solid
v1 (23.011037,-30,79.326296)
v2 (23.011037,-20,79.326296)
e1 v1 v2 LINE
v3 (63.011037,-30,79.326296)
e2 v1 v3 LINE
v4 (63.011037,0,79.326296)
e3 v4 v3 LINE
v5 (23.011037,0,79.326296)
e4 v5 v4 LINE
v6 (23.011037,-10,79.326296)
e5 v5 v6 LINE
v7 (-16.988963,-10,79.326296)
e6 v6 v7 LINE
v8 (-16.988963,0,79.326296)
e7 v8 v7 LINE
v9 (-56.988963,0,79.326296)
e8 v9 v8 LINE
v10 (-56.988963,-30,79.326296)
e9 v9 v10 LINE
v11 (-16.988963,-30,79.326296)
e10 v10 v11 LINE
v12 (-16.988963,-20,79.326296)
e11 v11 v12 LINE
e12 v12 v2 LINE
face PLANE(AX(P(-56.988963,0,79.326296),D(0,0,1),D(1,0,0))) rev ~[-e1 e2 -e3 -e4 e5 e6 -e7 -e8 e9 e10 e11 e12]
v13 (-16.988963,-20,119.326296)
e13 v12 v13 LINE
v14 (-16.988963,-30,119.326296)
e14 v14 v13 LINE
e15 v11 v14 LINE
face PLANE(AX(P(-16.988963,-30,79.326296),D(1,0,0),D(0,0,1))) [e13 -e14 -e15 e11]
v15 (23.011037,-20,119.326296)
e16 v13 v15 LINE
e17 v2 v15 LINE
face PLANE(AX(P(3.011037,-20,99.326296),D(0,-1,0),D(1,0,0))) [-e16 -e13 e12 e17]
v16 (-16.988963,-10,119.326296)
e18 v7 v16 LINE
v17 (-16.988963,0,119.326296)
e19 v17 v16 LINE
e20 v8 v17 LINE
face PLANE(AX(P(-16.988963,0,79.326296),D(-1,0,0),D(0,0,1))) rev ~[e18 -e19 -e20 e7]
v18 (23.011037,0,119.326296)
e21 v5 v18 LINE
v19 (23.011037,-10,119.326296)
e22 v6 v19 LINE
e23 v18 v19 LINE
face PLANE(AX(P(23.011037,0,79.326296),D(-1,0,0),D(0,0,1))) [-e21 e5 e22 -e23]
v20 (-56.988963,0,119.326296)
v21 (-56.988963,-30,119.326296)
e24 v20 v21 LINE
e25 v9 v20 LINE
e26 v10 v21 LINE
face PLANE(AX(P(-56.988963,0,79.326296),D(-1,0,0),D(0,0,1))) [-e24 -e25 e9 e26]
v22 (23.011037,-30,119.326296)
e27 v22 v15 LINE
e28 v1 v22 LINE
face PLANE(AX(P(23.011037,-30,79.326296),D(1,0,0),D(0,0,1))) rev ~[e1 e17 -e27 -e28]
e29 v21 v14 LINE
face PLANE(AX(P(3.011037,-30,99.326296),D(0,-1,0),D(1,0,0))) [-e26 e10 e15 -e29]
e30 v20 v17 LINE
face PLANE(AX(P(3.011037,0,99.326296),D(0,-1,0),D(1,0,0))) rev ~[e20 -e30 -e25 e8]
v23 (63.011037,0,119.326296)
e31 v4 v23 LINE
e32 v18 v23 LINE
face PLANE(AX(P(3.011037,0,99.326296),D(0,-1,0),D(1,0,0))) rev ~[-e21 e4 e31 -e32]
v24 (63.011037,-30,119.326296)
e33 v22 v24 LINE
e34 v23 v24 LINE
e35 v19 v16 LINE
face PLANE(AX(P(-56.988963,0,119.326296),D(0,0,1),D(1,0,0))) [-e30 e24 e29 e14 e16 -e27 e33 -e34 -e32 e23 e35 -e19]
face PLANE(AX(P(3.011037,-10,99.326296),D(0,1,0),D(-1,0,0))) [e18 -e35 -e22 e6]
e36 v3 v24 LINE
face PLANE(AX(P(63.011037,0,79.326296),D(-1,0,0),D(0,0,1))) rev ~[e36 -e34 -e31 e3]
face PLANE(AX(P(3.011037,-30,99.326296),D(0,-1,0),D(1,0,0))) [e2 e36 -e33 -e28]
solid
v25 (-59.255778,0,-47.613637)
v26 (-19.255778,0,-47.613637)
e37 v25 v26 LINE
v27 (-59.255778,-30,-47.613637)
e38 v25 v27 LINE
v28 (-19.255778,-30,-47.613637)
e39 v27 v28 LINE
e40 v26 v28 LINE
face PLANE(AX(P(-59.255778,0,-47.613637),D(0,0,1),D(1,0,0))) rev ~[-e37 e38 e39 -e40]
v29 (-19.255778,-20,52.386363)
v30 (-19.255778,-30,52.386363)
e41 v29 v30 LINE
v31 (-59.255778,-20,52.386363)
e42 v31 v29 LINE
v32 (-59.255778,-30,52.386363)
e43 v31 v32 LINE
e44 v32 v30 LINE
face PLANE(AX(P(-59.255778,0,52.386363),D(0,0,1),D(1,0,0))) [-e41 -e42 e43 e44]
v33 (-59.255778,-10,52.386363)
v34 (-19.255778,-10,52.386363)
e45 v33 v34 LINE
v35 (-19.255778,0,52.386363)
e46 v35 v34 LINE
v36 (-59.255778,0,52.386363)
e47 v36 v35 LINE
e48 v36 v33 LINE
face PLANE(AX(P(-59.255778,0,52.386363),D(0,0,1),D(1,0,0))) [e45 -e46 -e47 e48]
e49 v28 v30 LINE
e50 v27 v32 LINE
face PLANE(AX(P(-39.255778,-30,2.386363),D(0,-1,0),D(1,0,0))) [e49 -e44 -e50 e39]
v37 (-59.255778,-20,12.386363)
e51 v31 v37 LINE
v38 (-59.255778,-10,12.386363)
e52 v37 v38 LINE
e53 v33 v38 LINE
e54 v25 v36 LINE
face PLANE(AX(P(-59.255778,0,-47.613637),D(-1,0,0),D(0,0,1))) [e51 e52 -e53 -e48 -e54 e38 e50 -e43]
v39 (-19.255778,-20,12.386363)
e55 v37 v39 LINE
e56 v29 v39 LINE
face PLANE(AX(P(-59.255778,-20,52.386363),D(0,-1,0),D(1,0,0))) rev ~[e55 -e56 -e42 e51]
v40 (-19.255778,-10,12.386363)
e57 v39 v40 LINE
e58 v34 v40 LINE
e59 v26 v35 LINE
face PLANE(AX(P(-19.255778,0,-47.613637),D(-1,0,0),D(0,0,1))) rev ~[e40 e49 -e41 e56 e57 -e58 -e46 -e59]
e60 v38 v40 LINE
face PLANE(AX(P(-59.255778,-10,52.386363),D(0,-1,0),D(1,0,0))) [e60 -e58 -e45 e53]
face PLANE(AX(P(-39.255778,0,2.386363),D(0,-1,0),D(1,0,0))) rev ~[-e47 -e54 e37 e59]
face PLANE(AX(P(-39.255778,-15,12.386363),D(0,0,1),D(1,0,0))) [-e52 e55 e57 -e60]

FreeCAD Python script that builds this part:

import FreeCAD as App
import Part
import Sketcher

V = App.Vector

doc = App.newDocument("Part")
params = doc.addObject("Spreadsheet::Sheet", "Params")
for row, (alias, value) in enumerate([
    ("sketch1_width", "40 mm"),
    ("sketch1_height", "100 mm"),
    ("pad1_length", "30 mm"),
    ("sketch2_width", "40 mm"),
    ("sketch2_height", "10 mm"),
    ("pocket1_length", "40 mm"),
    ("sketch3_width", "120 mm"),
    ("sketch3_height", "40 mm"),
    ("pad2_length", "30 mm"),
    ("sketch4_width", "40 mm"),
    ("pocket2_length", "10 mm"),
    ("sketch5_width", "40 mm"),
    ("pocket3_length", "10 mm"),
], start=1):
    params.set(f"A{row}", alias)
    params.set(f"B{row}", "=" + value)
    params.setAlias(f"B{row}", alias)

body = doc.addObject("PartDesign::Body", "Body")

# Sketch on XZ plane
sketch1 = doc.addObject("Sketcher::SketchObject", "Sketch")
body.addObject(sketch1)
sketch1.AttachmentSupport = (doc.XZ_Plane, [""])
sketch1.MapMode = "FlatFace"
sketch1.addGeometry(Part.LineSegment(V(-59.255778, 52.386363, 0), V(-59.255778, -47.613637, 0)), False)
sketch1.addGeometry(Part.LineSegment(V(-59.255778, -47.613637, 0), V(-19.255778, -47.613637, 0)), False)
sketch1.addGeometry(Part.LineSegment(V(-19.255778, -47.613637, 0), V(-19.255778, 52.386363, 0)), False)
sketch1.addGeometry(Part.LineSegment(V(-19.255778, 52.386363, 0), V(-59.255778, 52.386363, 0)), False)
sketch1.addConstraint(Sketcher.Constraint("Coincident", 0, 2, 1, 1))
sketch1.addConstraint(Sketcher.Constraint("Coincident", 1, 2, 2, 1))
sketch1.addConstraint(Sketcher.Constraint("Coincident", 2, 2, 3, 1))
sketch1.addConstraint(Sketcher.Constraint("Coincident", 3, 2, 0, 1))
sketch1.addConstraint(Sketcher.Constraint("Vertical", 0))
sketch1.addConstraint(Sketcher.Constraint("Horizontal", 1))
sketch1.addConstraint(Sketcher.Constraint("Vertical", 2))
sketch1.addConstraint(Sketcher.Constraint("Horizontal", 3))
sketch1.addConstraint(Sketcher.Constraint("DistanceX", 1, 1, 1, 2, 40.0))
sketch1.addConstraint(Sketcher.Constraint("DistanceY", 0, 2, 0, 1, 100.0))
sketch1.addConstraint(Sketcher.Constraint("DistanceX", 0, 2, -1, 1, 59.255778))
sketch1.addConstraint(Sketcher.Constraint("DistanceY", 0, 2, -1, 1, 47.613637))
sketch1.setExpression("Constraints[8]", "Params.sketch1_width")
sketch1.setExpression("Constraints[9]", "Params.sketch1_height")
pad1 = doc.addObject("PartDesign::Pad", "Pad")
body.addObject(pad1)
pad1.Profile = sketch1
pad1.setExpression("Length", "Params.pad1_length")

# Sketch on XY plane
sketch2 = doc.addObject("Sketcher::SketchObject", "Sketch001")
body.addObject(sketch2)
sketch2.AttachmentSupport = (doc.XY_Plane, [""])
sketch2.MapMode = "FlatFace"
sketch2.AttachmentOffset = App.Placement(V(0, 0, 52.386363), App.Rotation())
sketch2.addGeometry(Part.LineSegment(V(-59.255778, -10, 0), V(-59.255778, -20, 0)), False)
sketch2.addGeometry(Part.LineSegment(V(-59.255778, -20, 0), V(-19.255778, -20, 0)), False)
sketch2.addGeometry(Part.LineSegment(V(-19.255778, -20, 0), V(-19.255778, -10, 0)), False)
sketch2.addGeometry(Part.LineSegment(V(-19.255778, -10, 0), V(-59.255778, -10, 0)), False)
sketch2.addConstraint(Sketcher.Constraint("Coincident", 0, 2, 1, 1))
sketch2.addConstraint(Sketcher.Constraint("Coincident", 1, 2, 2, 1))
sketch2.addConstraint(Sketcher.Constraint("Coincident", 2, 2, 3, 1))
sketch2.addConstraint(Sketcher.Constraint("Coincident", 3, 2, 0, 1))
sketch2.addConstraint(Sketcher.Constraint("Vertical", 0))
sketch2.addConstraint(Sketcher.Constraint("Horizontal", 1))
sketch2.addConstraint(Sketcher.Constraint("Vertical", 2))
sketch2.addConstraint(Sketcher.Constraint("Horizontal", 3))
sketch2.addConstraint(Sketcher.Constraint("DistanceX", 1, 1, 1, 2, 40.0))
sketch2.addConstraint(Sketcher.Constraint("DistanceY", 0, 2, 0, 1, 10.0))
sketch2.addConstraint(Sketcher.Constraint("DistanceY", 0, 2, -1, 1, 20.0))
sketch2.addConstraint(Sketcher.Constraint("DistanceX", 0, 2, -1, 1, 59.255778))
sketch2.setExpression("Constraints[8]", "Params.sketch2_width")
sketch2.setExpression("Constraints[9]", "Params.sketch2_height")
pocket1 = doc.addObject("PartDesign::Pocket", "Pocket")
body.addObject(pocket1)
pocket1.Profile = sketch2
pocket1.setExpression("Length", "Params.pocket1_length")
body2 = doc.addObject("PartDesign::Body", "Body001")

# Sketch on XZ plane
sketch3 = doc.addObject("Sketcher::SketchObject", "Sketch002")
body2.addObject(sketch3)
sketch3.AttachmentSupport = (doc.getObject("XZ_Plane001"), [""])
sketch3.MapMode = "FlatFace"
sketch3.addGeometry(Part.LineSegment(V(-56.988963, 119.326296, 0), V(-56.988963, 79.326296, 0)), False)
sketch3.addGeometry(Part.LineSegment(V(-56.988963, 79.326296, 0), V(63.011037, 79.326296, 0)), False)
sketch3.addGeometry(Part.LineSegment(V(63.011037, 79.326296, 0), V(63.011037, 119.326296, 0)), False)
sketch3.addGeometry(Part.LineSegment(V(63.011037, 119.326296, 0), V(-56.988963, 119.326296, 0)), False)
sketch3.addConstraint(Sketcher.Constraint("Coincident", 0, 2, 1, 1))
sketch3.addConstraint(Sketcher.Constraint("Coincident", 1, 2, 2, 1))
sketch3.addConstraint(Sketcher.Constraint("Coincident", 2, 2, 3, 1))
sketch3.addConstraint(Sketcher.Constraint("Coincident", 3, 2, 0, 1))
sketch3.addConstraint(Sketcher.Constraint("Vertical", 0))
sketch3.addConstraint(Sketcher.Constraint("Horizontal", 1))
sketch3.addConstraint(Sketcher.Constraint("Vertical", 2))
sketch3.addConstraint(Sketcher.Constraint("Horizontal", 3))
sketch3.addConstraint(Sketcher.Constraint("DistanceX", 1, 1, 1, 2, 120.0))
sketch3.addConstraint(Sketcher.Constraint("DistanceY", 0, 2, 0, 1, 40.0))
sketch3.addConstraint(Sketcher.Constraint("DistanceX", 0, 2, -1, 1, 56.988963))
sketch3.addConstraint(Sketcher.Constraint("DistanceY", -1, 1, 0, 2, 79.326296))
sketch3.setExpression("Constraints[8]", "Params.sketch3_width")
sketch3.setExpression("Constraints[9]", "Params.sketch3_height")
pad2 = doc.addObject("PartDesign::Pad", "Pad001")
body2.addObject(pad2)
pad2.Profile = sketch3
pad2.setExpression("Length", "Params.pad2_length")

# Sketch on XZ plane
sketch4 = doc.addObject("Sketcher::SketchObject", "Sketch003")
body2.addObject(sketch4)
sketch4.AttachmentSupport = (doc.getObject("XZ_Plane001"), [""])
sketch4.MapMode = "FlatFace"
sketch4.AttachmentOffset = App.Placement(V(0, 0, 30), App.Rotation())
sketch4.addGeometry(Part.LineSegment(V(-16.988963, 119.326296, 0), V(-16.988963, 79.326296, 0)), False)
sketch4.addGeometry(Part.LineSegment(V(-16.988963, 79.326296, 0), V(23.011037, 79.326296, 0)), False)
sketch4.addGeometry(Part.LineSegment(V(23.011037, 79.326296, 0), V(23.011037, 119.326296, 0)), False)
sketch4.addGeometry(Part.LineSegment(V(23.011037, 119.326296, 0), V(-16.988963, 119.326296, 0)), False)
sketch4.addConstraint(Sketcher.Constraint("Coincident", 0, 2, 1, 1))
sketch4.addConstraint(Sketcher.Constraint("Coincident", 1, 2, 2, 1))
sketch4.addConstraint(Sketcher.Constraint("Coincident", 2, 2, 3, 1))
sketch4.addConstraint(Sketcher.Constraint("Coincident", 3, 2, 0, 1))
sketch4.addConstraint(Sketcher.Constraint("Vertical", 0))
sketch4.addConstraint(Sketcher.Constraint("Horizontal", 1))
sketch4.addConstraint(Sketcher.Constraint("Vertical", 2))
sketch4.addConstraint(Sketcher.Constraint("Horizontal", 3))
sketch4.addConstraint(Sketcher.Constraint("Equal", 3, 0))
sketch4.addConstraint(Sketcher.Constraint("DistanceX", 1, 1, 1, 2, 40.0))
sketch4.addConstraint(Sketcher.Constraint("DistanceX", 0, 2, -1, 1, 16.988963))
sketch4.addConstraint(Sketcher.Constraint("DistanceY", -1, 1, 0, 2, 79.326296))
sketch4.setExpression("Constraints[9]", "Params.sketch4_width")
pocket2 = doc.addObject("PartDesign::Pocket", "Pocket001")
body2.addObject(pocket2)
pocket2.Profile = sketch4
pocket2.setExpression("Length", "Params.pocket2_length")

# Sketch on XZ plane
sketch5 = doc.addObject("Sketcher::SketchObject", "Sketch004")
body2.addObject(sketch5)
sketch5.AttachmentSupport = (doc.getObject("XZ_Plane001"), [""])
sketch5.MapMode = "FlatFace"
sketch5.addGeometry(Part.LineSegment(V(23.011037, 119.326296, 0), V(23.011037, 79.326296, 0)), False)
sketch5.addGeometry(Part.LineSegment(V(23.011037, 79.326296, 0), V(-16.988963, 79.326296, 0)), False)
sketch5.addGeometry(Part.LineSegment(V(-16.988963, 79.326296, 0), V(-16.988963, 119.326296, 0)), False)
sketch5.addGeometry(Part.LineSegment(V(-16.988963, 119.326296, 0), V(23.011037, 119.326296, 0)), False)
sketch5.addConstraint(Sketcher.Constraint("Coincident", 0, 2, 1, 1))
sketch5.addConstraint(Sketcher.Constraint("Coincident", 1, 2, 2, 1))
sketch5.addConstraint(Sketcher.Constraint("Coincident", 2, 2, 3, 1))
sketch5.addConstraint(Sketcher.Constraint("Coincident", 3, 2, 0, 1))
sketch5.addConstraint(Sketcher.Constraint("Vertical", 0))
sketch5.addConstraint(Sketcher.Constraint("Horizontal", 1))
sketch5.addConstraint(Sketcher.Constraint("Vertical", 2))
sketch5.addConstraint(Sketcher.Constraint("Horizontal", 3))
sketch5.addConstraint(Sketcher.Constraint("Equal", 3, 0))
sketch5.addConstraint(Sketcher.Constraint("DistanceX", 1, 2, 1, 1, 40.0))
sketch5.addConstraint(Sketcher.Constraint("DistanceX", -1, 1, 0, 2, 23.011037))
sketch5.addConstraint(Sketcher.Constraint("DistanceY", -1, 1, 0, 2, 79.326296))
sketch5.setExpression("Constraints[9]", "Params.sketch5_width")
pocket3 = doc.addObject("PartDesign::Pocket", "Pocket002")
body2.addObject(pocket3)
pocket3.Profile = sketch5
pocket3.setExpression("Length", "Params.pocket3_length")
pocket3.Reversed = True

doc.recompute()
